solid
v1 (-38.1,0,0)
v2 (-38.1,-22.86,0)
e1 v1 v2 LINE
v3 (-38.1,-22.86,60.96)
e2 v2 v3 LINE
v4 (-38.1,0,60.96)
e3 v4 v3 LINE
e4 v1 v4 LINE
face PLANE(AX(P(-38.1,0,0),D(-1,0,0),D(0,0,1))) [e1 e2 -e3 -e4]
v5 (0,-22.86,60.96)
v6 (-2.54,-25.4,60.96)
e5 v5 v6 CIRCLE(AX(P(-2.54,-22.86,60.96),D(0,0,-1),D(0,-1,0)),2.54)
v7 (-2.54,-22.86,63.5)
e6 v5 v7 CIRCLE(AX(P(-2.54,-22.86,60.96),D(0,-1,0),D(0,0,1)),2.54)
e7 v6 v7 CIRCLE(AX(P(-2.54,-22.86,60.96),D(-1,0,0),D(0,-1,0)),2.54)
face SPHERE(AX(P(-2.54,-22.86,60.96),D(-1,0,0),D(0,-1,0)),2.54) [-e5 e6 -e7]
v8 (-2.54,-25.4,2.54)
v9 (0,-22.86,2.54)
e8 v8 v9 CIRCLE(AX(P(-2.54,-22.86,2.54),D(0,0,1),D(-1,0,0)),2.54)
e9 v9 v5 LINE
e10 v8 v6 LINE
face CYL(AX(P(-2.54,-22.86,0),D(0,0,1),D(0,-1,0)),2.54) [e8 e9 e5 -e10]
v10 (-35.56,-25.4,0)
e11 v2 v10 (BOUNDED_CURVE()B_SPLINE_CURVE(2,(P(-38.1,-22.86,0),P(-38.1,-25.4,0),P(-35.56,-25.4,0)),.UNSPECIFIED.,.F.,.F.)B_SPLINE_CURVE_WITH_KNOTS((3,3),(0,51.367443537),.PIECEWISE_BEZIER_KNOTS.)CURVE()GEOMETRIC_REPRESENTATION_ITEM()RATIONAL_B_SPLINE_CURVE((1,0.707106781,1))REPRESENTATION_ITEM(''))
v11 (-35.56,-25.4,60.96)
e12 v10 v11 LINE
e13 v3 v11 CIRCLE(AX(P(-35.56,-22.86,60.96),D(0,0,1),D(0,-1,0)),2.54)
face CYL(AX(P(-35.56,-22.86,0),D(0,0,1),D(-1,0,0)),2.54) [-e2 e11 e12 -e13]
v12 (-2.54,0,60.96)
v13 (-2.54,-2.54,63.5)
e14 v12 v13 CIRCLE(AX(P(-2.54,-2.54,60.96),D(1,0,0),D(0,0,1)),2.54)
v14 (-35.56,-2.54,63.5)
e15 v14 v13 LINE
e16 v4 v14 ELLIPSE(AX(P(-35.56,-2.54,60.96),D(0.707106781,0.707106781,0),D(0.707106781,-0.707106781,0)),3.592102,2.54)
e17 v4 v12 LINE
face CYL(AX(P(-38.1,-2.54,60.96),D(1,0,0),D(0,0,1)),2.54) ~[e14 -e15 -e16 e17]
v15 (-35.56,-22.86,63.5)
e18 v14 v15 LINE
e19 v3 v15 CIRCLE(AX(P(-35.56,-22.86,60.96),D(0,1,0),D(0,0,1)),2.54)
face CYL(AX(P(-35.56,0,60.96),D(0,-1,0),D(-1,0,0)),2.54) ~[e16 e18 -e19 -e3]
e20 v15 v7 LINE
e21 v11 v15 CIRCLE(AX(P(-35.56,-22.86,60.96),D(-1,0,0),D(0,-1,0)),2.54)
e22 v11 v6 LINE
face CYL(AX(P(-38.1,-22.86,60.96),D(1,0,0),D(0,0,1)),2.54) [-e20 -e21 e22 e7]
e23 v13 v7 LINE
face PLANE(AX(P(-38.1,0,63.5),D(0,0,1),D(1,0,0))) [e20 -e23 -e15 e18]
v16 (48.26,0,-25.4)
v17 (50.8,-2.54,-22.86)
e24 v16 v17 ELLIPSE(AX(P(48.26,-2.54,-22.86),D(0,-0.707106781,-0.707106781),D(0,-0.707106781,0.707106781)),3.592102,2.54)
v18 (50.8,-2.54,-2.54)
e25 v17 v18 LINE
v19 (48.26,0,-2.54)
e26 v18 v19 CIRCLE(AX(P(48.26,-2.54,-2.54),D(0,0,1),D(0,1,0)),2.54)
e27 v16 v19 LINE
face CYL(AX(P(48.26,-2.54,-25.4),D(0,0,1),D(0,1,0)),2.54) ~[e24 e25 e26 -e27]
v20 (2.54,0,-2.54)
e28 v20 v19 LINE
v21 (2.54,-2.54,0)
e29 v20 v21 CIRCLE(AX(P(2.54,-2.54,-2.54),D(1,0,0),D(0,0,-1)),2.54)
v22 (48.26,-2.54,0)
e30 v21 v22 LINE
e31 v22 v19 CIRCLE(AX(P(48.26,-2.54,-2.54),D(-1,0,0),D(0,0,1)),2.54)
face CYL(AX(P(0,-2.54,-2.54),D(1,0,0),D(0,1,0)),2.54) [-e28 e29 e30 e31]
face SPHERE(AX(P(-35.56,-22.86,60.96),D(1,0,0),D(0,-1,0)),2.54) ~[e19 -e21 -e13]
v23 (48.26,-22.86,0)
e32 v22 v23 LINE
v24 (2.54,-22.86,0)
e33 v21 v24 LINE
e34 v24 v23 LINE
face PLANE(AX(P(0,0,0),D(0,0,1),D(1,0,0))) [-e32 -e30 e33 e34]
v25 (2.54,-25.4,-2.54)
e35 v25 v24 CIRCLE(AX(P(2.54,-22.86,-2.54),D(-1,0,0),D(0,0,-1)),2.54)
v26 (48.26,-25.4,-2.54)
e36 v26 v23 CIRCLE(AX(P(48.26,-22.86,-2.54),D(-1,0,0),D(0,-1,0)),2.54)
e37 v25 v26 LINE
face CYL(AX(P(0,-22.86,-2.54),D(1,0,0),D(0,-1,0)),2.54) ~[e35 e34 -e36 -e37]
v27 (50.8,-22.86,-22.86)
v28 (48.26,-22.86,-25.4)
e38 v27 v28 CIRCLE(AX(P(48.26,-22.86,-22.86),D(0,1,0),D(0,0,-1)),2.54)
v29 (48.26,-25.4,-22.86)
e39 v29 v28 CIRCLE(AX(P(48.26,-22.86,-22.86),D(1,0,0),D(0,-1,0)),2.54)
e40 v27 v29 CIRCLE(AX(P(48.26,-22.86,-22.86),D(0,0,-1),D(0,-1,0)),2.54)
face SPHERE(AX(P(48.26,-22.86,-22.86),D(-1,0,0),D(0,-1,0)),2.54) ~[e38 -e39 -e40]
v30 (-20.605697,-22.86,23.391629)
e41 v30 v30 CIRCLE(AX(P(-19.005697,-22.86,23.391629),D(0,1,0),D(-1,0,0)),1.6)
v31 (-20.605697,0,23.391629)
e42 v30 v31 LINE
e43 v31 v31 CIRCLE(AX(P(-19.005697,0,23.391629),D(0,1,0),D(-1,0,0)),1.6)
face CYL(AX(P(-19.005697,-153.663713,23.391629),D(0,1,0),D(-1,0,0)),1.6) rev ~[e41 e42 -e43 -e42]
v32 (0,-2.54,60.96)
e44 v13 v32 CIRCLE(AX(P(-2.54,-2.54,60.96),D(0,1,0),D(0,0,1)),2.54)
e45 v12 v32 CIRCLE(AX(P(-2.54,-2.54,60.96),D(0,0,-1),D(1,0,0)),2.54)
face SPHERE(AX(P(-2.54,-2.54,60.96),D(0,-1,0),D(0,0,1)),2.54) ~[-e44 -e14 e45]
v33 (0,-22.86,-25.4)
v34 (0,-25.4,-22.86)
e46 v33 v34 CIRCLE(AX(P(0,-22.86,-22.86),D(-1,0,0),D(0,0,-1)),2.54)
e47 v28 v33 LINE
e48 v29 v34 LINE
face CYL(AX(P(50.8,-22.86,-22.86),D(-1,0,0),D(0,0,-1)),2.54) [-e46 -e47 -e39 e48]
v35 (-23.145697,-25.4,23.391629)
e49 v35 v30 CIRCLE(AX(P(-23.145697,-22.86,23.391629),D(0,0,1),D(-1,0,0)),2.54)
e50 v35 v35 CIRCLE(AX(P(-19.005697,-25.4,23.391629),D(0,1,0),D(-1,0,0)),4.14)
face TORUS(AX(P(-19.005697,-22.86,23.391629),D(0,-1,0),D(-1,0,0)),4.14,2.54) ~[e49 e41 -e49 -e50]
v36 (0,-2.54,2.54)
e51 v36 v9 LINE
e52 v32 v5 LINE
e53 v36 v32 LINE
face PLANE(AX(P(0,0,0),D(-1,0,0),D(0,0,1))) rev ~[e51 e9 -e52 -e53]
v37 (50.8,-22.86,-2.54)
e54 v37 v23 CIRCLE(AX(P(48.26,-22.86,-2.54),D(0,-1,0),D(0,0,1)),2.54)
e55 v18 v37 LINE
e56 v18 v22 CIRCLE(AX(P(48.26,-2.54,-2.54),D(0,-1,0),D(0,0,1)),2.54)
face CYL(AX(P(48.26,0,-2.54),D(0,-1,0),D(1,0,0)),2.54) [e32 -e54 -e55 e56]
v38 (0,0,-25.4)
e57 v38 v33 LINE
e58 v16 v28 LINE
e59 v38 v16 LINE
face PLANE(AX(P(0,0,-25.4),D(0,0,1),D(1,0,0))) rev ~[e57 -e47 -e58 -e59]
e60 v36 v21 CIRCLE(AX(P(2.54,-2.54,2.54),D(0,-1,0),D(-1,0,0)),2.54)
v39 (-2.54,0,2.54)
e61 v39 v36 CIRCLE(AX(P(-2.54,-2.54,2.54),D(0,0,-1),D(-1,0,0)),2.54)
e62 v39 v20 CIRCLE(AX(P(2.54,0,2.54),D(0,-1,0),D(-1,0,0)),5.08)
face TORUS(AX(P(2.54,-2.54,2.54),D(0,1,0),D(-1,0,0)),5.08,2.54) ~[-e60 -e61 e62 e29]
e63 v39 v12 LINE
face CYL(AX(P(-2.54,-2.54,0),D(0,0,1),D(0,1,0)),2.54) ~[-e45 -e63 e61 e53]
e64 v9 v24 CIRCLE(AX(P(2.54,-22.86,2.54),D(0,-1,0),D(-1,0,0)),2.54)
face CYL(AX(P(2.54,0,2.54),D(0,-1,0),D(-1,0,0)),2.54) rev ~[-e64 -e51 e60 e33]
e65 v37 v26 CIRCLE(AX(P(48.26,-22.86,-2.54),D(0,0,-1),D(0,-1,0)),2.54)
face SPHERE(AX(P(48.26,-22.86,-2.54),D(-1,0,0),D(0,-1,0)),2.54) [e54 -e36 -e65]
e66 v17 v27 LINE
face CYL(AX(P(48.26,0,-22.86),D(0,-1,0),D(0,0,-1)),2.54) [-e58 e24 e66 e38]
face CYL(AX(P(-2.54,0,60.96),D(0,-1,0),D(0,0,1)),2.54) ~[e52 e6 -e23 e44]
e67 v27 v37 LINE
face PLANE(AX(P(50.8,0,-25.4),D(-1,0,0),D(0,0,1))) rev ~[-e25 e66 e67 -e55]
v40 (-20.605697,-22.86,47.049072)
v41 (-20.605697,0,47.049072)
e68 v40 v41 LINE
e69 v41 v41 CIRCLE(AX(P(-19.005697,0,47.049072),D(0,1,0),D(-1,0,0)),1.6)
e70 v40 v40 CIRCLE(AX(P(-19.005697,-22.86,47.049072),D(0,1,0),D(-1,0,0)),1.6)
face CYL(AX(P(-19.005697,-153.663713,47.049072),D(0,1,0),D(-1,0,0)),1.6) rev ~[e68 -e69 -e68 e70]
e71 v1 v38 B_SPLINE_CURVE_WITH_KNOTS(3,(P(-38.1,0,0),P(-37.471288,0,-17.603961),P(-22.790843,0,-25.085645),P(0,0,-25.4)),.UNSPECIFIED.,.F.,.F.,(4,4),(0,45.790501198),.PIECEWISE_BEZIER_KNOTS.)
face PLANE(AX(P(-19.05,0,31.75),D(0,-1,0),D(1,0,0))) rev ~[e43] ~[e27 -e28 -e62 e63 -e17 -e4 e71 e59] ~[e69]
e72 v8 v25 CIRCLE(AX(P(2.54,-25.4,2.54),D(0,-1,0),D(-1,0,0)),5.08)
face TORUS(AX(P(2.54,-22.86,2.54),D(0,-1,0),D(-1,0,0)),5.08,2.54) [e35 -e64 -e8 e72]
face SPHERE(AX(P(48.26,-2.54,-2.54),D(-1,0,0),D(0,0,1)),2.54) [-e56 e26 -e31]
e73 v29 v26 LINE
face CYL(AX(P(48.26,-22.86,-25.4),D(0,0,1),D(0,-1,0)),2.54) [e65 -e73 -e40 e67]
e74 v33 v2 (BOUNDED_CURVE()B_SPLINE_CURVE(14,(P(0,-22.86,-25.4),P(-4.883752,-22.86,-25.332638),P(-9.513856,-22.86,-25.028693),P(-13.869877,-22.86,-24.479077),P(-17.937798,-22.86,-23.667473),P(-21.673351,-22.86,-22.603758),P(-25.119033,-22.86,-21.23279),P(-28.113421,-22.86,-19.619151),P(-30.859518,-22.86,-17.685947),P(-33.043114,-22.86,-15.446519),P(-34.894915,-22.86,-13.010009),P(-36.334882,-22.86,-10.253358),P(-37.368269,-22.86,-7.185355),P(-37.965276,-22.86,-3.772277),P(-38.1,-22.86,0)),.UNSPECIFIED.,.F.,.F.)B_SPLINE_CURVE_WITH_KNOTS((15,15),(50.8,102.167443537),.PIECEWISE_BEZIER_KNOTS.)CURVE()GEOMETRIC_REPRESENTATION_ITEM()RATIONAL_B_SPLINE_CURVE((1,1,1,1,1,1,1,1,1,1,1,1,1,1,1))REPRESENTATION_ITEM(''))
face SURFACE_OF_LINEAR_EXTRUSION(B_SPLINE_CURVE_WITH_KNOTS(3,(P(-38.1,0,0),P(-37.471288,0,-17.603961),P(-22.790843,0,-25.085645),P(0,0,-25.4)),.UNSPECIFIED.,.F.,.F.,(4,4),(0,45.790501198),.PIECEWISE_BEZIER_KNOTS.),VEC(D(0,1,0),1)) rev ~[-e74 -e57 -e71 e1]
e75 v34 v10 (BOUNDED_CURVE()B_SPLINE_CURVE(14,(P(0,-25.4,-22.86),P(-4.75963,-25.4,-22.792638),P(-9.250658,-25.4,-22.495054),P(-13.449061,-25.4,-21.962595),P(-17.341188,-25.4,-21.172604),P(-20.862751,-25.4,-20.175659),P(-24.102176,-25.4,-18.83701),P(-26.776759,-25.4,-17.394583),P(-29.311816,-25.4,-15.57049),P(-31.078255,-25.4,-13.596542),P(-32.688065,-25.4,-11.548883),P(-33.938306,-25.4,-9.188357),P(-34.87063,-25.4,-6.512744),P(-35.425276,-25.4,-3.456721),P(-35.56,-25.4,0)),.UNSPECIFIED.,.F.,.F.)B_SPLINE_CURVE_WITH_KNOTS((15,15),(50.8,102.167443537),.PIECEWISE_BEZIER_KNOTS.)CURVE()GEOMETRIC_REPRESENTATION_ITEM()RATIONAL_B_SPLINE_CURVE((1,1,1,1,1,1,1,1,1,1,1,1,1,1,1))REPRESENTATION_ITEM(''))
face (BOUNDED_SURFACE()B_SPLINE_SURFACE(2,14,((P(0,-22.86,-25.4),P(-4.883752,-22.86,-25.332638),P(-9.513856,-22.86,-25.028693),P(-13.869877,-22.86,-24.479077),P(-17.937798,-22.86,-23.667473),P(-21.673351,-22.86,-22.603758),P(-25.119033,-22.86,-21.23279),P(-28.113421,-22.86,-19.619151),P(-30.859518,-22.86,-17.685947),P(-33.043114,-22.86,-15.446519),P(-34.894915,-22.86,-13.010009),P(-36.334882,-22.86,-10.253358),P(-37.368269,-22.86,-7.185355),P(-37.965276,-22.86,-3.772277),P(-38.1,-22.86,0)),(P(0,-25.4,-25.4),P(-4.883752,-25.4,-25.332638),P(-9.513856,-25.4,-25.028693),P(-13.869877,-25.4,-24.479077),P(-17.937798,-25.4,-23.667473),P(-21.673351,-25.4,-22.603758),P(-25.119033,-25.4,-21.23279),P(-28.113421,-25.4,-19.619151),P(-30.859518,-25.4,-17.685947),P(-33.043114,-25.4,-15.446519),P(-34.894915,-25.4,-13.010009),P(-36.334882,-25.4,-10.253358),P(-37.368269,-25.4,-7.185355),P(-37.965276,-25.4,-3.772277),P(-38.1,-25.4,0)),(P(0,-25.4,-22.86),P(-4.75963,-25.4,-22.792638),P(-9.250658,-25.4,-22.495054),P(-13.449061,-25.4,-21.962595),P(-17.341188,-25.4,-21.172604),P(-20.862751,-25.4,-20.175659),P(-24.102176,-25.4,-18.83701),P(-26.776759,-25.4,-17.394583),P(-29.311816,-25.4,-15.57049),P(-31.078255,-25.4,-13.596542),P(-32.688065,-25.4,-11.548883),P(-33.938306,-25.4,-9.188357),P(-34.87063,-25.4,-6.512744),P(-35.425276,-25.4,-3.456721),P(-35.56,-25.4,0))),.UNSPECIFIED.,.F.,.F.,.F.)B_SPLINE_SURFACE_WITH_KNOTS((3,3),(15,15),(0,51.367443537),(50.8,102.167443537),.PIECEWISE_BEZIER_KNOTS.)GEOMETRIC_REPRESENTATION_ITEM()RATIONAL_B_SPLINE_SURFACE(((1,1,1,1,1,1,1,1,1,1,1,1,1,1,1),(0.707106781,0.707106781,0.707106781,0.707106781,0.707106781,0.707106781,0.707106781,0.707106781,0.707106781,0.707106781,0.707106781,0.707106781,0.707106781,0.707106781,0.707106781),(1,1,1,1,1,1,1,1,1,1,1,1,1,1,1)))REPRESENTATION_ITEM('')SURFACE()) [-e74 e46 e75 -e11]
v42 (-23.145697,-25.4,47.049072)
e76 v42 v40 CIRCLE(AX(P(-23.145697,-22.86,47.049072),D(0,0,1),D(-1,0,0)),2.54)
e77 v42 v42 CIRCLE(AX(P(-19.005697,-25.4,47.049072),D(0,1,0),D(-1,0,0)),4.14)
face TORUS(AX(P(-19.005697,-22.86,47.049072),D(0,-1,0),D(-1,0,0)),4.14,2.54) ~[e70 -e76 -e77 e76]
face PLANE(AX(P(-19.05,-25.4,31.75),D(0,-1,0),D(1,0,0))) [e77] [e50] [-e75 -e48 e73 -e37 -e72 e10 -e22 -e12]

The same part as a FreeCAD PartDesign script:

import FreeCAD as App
import Part
import Sketcher
from FreeCAD import Vector
Q = App.Units.Quantity


def edges_at(feature, points):
    """Names of the edges that pass closest to the given points."""
    edges = feature.Shape.Edges
    near = lambda p: min(range(len(edges)), key=lambda i: edges[i].distToShape(Part.Vertex(*p))[0])
    return sorted({f"Edge{near(p) + 1}" for p in points})

doc = App.newDocument("Part")
body = doc.addObject("PartDesign::Body", "Body")

sketch1 = body.newObject("Sketcher::SketchObject", "Sketch")
sketch1.AttachmentSupport = (doc.getObject("XZ_Plane"), [""])
sketch1.MapMode = "FlatFace"
sketch1.addGeometry([
    Part.LineSegment(Vector(-38.1, 63.5, 0), Vector(-38.1, 0, 0)),
    Part.BSplineCurve([Vector(-38.1, 0, 0), Vector(-37.471288, -17.603961, 0), Vector(-22.790843, -25.085645, 0), Vector(0, -25.4, 0)], [4, 4], [0, 45.790501198], False, 3, [1, 1, 1, 1], False),
    Part.LineSegment(Vector(0, -25.4, 0), Vector(50.8, -25.4, 0)),
    Part.LineSegment(Vector(50.8, -25.4, 0), Vector(50.8, 0, 0)),
    Part.LineSegment(Vector(50.8, 0, 0), Vector(0, 0, 0)),
    Part.LineSegment(Vector(0, 0, 0), Vector(0, 63.5, 0)),
    Part.LineSegment(Vector(0, 63.5, 0), Vector(-38.1, 63.5, 0)),
], False)
sketch1.addConstraint([
    Sketcher.Constraint("Block", 1),
    Sketcher.Constraint("Coincident", 0, 2, 1, 1),
    Sketcher.Constraint("Coincident", 1, 2, 2, 1),
    Sketcher.Constraint("Coincident", 2, 2, 3, 1),
    Sketcher.Constraint("Coincident", 3, 2, 4, 1),
    Sketcher.Constraint("Coincident", 4, 2, 5, 1),
    Sketcher.Constraint("Coincident", 5, 2, 6, 1),
    Sketcher.Constraint("Coincident", 6, 2, 0, 1),
    Sketcher.Constraint("Vertical", 0),
    Sketcher.Constraint("Horizontal", 2),
    Sketcher.Constraint("Vertical", 3),
    Sketcher.Constraint("Horizontal", 4),
    Sketcher.Constraint("Vertical", 5),
    Sketcher.Constraint("Horizontal", 6),
    Sketcher.Constraint("Coincident", 4, 2, -1, 1),
    Sketcher.Constraint("DistanceX", 2, 1, 2, 2, Q("2 in")),
    Sketcher.Constraint("DistanceY", 0, 2, 0, 1, Q("2.5 in")),
])
pad1 = body.newObject("PartDesign::Pad", "Pad")
pad1.Profile = sketch1
pad1.Length = Q("1 in")

sketch2 = body.newObject("Sketcher::SketchObject", "Sketch001")
sketch2.AttachmentSupport = (doc.getObject("XZ_Plane"), [""])
sketch2.MapMode = "FlatFace"
sketch2.AttachmentOffset = App.Placement(Vector(0, 0, 1 * 25.4), App.Rotation())
sketch2.addGeometry([
    Part.Circle(Vector(-19.005697, 47.049072, 0), Vector(0, 0, 1), 1.6),
    Part.Circle(Vector(-19.005697, 23.391629, 0), Vector(0, 0, 1), 1.6),
], False)
sketch2.addConstraint([
    Sketcher.Constraint("Equal", 0, 1),
    Sketcher.Constraint("Vertical", 0, 3, 1, 3),
    Sketcher.Constraint("Diameter", 0, 3.2),
    Sketcher.Constraint("DistanceY", -1, 1, 0, 3, 47.049072),
    Sketcher.Constraint("DistanceY", -1, 1, 1, 3, 23.391629),
    Sketcher.Constraint("DistanceX", 0, 3, -1, 1, 19.005697),
])
doc.recompute()
hole = body.newObject("PartDesign::Hole", "Hole")
hole.Profile = sketch2
hole.ThreadType = "None"
hole.Diameter = 3.2
hole.DepthType = "ThroughAll"
doc.recompute()

fillet = body.newObject("PartDesign::Fillet", "Fillet")
fillet.Base = (hole, edges_at(hole, [
    (-19.05, -25.4, 63.5),
    (0, -25.4, 31.75),
    (-38.1, -25.4, 31.75),
    (25.4, -25.4, 0),
    (-25, -25.4, -20.504),
    (50.8, -25.4, -12.7),
    (25.4, -25.4, -25.4),
    (-17.406, -25.4, 23.392),
    (-17.406, -25.4, 47.049),
    (0, -12.7, 63.5),
    (-38.1, -12.7, 63.5),
    (-19.05, 0, 63.5),
    (0, -12.7, 0),
    (0, 0, 31.75),
    (25.4, 0, 0),
    (50.8, -12.7, -25.4),
    (50.8, -12.7, 0),
    (50.8, 0, -12.7),
]))
fillet.Radius = Q("0.1 in")

doc.recompute()
